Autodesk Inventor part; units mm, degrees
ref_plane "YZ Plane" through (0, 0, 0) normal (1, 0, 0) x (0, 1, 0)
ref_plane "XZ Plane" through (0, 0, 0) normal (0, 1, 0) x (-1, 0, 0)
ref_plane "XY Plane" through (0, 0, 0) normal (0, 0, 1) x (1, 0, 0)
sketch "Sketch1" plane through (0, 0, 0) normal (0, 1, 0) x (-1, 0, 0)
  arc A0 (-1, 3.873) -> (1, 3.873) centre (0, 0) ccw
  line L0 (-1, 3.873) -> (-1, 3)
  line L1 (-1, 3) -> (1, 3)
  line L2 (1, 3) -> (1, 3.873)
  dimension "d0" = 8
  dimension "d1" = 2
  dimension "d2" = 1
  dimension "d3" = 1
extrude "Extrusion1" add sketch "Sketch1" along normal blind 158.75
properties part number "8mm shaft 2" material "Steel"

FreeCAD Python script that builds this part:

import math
import FreeCAD as App
import Part
import Sketcher

V = App.Vector

doc = App.newDocument("Part")
params = doc.addObject("Spreadsheet::Sheet", "Params")
for row, (alias, value) in enumerate([
    ("sketch1_radius", "4 mm"),
    ("sketch1_width", "2 mm"),
    ("pad1_length", "158.75 mm"),
], start=1):
    params.set(f"A{row}", alias)
    params.set(f"B{row}", "=" + value)
    params.setAlias(f"B{row}", alias)

body = doc.addObject("PartDesign::Body", "Body")

sketch1 = doc.addObject("Sketcher::SketchObject", "Sketch")
body.addObject(sketch1)
sketch1.AttachmentSupport = (doc.XZ_Plane, [""])
sketch1.MapMode = "FlatFace"
sketch1.addGeometry([
    Part.LineSegment(V(1, 3, 0), V(1, 3.873, 0)),
    Part.ArcOfCircle(Part.Circle(V(0, 0, 0), V(0, 0, 1), 4.000016), math.radians(104.477453), math.radians(435.522547)),
    Part.LineSegment(V(-1, 3.873, 0), V(-1, 3, 0)),
    Part.LineSegment(V(-1, 3, 0), V(1, 3, 0)),
], False)
sketch1.addConstraint([
    Sketcher.Constraint("Coincident", 0, 2, 1, 2),
    Sketcher.Constraint("Coincident", 1, 1, 2, 1),
    Sketcher.Constraint("Coincident", 2, 2, 3, 1),
    Sketcher.Constraint("Coincident", 3, 2, 0, 1),
    Sketcher.Constraint("Vertical", 0),
    Sketcher.Constraint("Vertical", 2),
    Sketcher.Constraint("Horizontal", 3),
    Sketcher.Constraint("Coincident", 1, 3, -1, 1),
    Sketcher.Constraint("Horizontal", 0, 2, 1, 1),
    Sketcher.Constraint("Radius", 1, 4.0),
    Sketcher.Constraint("DistanceX", 3, 1, 3, 2, 2.0),
    Sketcher.Constraint("DistanceY", -1, 1, 2, 2, 3.0),
])
sketch1.setExpression("Constraints[9]", "Params.sketch1_radius")
sketch1.setExpression("Constraints[10]", "Params.sketch1_width")
pad1 = doc.addObject("PartDesign::Pad", "Pad")
body.addObject(pad1)
pad1.Profile = sketch1
pad1.setExpression("Length", "Params.pad1_length")
pad1.Reversed = True

doc.recompute()
